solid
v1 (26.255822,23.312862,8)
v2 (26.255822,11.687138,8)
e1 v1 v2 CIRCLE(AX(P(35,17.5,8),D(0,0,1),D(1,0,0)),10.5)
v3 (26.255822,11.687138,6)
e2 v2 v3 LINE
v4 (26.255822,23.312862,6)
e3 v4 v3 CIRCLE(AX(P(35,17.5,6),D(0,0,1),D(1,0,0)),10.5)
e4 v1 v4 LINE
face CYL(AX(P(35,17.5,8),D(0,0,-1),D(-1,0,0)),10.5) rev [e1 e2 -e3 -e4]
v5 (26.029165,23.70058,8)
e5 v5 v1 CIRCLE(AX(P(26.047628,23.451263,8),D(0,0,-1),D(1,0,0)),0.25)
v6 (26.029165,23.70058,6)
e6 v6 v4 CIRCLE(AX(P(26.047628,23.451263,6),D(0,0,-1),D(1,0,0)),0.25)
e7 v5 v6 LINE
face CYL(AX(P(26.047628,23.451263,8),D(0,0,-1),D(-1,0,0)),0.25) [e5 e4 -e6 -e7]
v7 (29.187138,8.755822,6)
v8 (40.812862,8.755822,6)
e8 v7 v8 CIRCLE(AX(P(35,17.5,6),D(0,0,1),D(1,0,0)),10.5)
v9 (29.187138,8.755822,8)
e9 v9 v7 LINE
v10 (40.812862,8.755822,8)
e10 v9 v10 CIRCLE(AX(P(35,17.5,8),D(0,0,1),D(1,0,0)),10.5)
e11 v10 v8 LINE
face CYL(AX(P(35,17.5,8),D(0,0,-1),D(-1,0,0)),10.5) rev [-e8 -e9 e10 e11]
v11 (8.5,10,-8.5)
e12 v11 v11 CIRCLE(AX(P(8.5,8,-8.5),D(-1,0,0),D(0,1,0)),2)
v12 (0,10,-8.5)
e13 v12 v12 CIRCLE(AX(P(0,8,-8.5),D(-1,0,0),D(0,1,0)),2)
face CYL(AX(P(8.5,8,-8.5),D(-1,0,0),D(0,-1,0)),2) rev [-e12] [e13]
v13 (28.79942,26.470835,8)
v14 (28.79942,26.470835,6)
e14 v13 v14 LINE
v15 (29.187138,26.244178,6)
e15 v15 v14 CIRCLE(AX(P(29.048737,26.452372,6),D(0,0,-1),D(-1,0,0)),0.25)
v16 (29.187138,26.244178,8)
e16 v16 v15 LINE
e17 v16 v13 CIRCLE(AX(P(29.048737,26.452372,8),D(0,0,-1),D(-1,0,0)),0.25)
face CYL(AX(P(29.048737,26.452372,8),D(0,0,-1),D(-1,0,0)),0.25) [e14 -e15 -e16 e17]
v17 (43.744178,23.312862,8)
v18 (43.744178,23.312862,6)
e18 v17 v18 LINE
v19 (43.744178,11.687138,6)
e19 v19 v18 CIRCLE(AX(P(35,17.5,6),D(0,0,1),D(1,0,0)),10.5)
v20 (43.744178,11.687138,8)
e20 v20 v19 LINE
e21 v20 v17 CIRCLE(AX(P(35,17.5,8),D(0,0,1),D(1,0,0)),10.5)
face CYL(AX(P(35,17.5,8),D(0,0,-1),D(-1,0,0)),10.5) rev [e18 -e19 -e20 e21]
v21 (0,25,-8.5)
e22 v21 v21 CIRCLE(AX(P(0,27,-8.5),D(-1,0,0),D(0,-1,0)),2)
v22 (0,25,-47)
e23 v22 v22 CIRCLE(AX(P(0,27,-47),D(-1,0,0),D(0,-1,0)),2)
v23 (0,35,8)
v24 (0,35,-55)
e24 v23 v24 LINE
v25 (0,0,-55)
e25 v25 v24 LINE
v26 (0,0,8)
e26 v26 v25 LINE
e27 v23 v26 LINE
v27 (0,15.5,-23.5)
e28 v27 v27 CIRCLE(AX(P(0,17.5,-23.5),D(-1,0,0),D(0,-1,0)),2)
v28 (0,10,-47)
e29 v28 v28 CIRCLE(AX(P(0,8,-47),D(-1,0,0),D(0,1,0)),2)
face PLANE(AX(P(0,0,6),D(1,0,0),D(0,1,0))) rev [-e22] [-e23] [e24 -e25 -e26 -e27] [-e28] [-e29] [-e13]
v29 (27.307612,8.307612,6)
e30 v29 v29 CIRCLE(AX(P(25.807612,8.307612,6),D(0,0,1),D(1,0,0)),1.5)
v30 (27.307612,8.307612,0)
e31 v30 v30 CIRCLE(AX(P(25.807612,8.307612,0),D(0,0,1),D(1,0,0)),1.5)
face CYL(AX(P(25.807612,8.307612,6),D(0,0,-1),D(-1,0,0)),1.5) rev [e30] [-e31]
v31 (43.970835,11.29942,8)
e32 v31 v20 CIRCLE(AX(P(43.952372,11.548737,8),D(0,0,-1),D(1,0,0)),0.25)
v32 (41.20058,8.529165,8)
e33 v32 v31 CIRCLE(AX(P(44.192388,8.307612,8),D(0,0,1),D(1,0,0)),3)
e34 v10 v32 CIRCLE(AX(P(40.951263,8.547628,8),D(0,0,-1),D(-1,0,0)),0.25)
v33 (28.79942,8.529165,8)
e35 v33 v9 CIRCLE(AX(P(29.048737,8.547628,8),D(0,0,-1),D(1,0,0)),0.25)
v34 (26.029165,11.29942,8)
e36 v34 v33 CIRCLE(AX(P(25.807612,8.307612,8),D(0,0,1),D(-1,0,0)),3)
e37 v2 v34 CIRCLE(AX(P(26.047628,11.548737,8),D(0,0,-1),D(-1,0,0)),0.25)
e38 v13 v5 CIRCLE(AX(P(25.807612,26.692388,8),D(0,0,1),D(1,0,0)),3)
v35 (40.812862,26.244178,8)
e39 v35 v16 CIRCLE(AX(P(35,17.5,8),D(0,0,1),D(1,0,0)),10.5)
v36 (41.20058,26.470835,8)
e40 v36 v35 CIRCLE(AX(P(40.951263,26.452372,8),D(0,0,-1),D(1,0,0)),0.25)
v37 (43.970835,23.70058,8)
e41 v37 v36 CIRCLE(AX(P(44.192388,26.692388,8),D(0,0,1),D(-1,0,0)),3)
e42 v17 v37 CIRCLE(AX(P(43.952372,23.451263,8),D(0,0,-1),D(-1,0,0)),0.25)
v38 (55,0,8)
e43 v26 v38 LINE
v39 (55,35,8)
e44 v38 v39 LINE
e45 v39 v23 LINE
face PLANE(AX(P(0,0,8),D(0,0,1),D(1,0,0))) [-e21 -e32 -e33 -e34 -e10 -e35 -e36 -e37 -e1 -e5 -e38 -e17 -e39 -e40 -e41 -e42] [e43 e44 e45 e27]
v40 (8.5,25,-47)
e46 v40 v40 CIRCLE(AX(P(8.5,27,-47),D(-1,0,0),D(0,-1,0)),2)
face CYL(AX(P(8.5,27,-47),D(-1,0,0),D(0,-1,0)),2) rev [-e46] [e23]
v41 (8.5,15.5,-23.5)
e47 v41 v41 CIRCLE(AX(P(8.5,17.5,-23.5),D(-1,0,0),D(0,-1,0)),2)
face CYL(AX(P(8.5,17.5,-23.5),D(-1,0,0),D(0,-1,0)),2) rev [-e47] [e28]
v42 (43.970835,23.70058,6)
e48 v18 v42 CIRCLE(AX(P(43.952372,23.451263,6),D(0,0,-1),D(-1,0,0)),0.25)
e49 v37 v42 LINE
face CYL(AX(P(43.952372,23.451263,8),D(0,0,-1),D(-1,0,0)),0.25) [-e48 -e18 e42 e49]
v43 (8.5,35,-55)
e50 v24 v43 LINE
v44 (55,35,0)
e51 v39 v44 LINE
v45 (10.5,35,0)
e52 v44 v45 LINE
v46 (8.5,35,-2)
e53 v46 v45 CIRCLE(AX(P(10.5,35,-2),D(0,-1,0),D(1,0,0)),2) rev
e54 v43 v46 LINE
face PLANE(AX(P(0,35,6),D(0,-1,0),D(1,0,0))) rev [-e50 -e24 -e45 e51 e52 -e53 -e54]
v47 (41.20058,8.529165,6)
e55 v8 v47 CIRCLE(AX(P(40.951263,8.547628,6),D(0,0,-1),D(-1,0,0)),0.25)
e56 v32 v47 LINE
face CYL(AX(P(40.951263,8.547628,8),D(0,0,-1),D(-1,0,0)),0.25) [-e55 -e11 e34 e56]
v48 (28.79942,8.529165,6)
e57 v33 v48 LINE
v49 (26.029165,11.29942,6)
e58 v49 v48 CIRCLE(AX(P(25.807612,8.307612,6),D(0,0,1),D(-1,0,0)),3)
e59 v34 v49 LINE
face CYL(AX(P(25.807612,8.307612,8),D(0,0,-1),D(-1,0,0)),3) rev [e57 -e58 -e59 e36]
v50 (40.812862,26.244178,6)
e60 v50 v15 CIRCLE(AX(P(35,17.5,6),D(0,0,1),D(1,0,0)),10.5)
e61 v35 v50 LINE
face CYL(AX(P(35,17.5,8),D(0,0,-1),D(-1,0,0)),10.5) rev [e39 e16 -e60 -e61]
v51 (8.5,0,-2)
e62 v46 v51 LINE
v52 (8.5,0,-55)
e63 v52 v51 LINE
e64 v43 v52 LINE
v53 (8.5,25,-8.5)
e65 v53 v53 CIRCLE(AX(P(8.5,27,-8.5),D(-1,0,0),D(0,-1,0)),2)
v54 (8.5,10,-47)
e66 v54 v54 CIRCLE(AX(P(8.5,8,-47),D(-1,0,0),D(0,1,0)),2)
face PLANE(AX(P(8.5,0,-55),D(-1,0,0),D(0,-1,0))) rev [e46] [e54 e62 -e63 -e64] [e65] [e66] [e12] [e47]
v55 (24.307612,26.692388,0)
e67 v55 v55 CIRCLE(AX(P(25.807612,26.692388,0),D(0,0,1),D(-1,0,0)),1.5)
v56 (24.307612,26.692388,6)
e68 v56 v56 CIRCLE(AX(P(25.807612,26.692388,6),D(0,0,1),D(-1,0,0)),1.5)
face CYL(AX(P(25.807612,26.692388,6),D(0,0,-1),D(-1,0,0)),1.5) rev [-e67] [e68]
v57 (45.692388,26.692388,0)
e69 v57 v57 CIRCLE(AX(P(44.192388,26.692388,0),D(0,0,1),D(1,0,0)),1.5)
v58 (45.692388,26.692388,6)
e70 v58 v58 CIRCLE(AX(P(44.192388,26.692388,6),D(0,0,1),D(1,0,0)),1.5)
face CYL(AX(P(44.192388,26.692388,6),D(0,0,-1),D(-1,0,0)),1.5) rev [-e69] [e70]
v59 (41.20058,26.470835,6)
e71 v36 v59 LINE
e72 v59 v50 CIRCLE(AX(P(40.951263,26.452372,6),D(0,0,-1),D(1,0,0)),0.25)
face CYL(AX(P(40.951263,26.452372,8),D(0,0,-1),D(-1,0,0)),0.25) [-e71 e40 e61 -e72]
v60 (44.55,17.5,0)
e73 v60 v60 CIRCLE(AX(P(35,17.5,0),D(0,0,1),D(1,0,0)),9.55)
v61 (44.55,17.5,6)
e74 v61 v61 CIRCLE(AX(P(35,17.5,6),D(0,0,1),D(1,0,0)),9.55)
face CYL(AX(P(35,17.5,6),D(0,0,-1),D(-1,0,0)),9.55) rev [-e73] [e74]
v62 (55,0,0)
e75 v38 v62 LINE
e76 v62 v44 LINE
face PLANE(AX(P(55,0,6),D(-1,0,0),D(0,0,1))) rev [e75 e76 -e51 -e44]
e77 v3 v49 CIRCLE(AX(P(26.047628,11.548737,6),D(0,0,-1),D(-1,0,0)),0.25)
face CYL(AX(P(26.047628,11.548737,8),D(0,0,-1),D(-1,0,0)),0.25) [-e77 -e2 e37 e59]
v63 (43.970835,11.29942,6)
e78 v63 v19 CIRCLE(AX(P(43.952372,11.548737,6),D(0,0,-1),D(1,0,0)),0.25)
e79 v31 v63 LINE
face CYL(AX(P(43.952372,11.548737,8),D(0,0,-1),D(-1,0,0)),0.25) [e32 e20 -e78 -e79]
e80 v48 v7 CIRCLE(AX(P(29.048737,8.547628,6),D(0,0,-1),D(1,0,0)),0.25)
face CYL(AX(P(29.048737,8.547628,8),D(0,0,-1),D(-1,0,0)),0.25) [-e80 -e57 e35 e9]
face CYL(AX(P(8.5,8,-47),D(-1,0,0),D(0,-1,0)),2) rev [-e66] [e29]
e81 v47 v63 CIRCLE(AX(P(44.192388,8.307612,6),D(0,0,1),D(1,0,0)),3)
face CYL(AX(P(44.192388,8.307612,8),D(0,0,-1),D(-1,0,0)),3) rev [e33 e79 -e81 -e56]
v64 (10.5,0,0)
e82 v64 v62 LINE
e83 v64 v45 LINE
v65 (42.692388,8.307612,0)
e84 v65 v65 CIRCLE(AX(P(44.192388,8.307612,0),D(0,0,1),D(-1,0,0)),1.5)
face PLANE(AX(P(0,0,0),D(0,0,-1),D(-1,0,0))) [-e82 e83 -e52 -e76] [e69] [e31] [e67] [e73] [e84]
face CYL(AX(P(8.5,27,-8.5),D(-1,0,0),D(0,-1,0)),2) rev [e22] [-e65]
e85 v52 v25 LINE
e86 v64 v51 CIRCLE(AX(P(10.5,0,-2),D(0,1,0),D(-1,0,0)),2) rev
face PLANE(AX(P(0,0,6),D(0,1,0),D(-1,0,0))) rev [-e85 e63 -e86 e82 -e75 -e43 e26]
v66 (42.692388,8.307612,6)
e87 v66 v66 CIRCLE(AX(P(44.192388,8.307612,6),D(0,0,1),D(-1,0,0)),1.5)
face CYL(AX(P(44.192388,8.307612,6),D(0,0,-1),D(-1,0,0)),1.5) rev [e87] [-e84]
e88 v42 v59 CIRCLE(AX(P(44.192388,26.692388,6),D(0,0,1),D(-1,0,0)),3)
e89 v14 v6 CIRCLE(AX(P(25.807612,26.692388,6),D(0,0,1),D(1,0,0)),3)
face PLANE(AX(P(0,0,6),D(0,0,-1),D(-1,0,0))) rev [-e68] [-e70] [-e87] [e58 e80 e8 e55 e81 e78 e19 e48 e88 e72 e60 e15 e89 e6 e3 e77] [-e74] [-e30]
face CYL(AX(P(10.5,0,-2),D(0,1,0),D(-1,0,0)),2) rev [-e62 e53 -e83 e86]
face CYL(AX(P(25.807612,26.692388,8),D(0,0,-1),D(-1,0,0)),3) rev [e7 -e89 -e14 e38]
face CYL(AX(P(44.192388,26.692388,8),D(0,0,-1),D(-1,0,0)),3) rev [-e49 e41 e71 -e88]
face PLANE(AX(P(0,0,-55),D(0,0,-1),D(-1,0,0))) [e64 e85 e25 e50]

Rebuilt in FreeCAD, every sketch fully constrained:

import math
import FreeCAD as App
import Part
import Sketcher
Q = App.Units.Quantity


def edges_at(feature, points):
    """Names of the edges that pass closest to the given points."""
    edges = feature.Shape.Edges
    near = lambda p: min(range(len(edges)), key=lambda i: edges[i].distToShape(Part.Vertex(*p))[0])
    return sorted({f"Edge{near(p) + 1}" for p in points})

doc = App.newDocument("Part")
body = doc.addObject("PartDesign::Body", "Body")

# Sketch on XY plane
sketch1 = body.newObject("Sketcher::SketchObject", "Sketch")
sketch1.AttachmentSupport = (doc.getObject("XY_Plane"), [""])
sketch1.MapMode = "FlatFace"
sketch1.addGeometry([
    Part.LineSegment(App.Vector(0, 35, 0), App.Vector(0, 0, 0)),  # 0
    Part.LineSegment(App.Vector(0, 0, 0), App.Vector(55, 0, 0)),  # 1
    Part.LineSegment(App.Vector(55, 0, 0), App.Vector(55, 35, 0)),  # 2
    Part.LineSegment(App.Vector(55, 35, 0), App.Vector(0, 35, 0)),  # 3
    Part.Circle(App.Vector(25.8, 8.3, 0), App.Vector(0, 0, 1), 1.5),  # 4
    Part.Circle(App.Vector(44.2, 8.3, 0), App.Vector(0, 0, 1), 1.5),  # 5
    Part.Circle(App.Vector(35, 17.5, 0), App.Vector(0, 0, 1), 9.6),  # 6
    Part.Circle(App.Vector(25.8, 26.7, 0), App.Vector(0, 0, 1), 1.5),  # 7
    Part.Circle(App.Vector(44.2, 26.7, 0), App.Vector(0, 0, 1), 1.5),  # 8
], False)
sketch1.addConstraint([
    Sketcher.Constraint("Coincident", 0, 2, 1, 1),
    Sketcher.Constraint("Coincident", 1, 2, 2, 1),
    Sketcher.Constraint("Coincident", 2, 2, 3, 1),
    Sketcher.Constraint("Coincident", 3, 2, 0, 1),
    Sketcher.Constraint("Vertical", 0),
    Sketcher.Constraint("Horizontal", 1),
    Sketcher.Constraint("Vertical", 2),
    Sketcher.Constraint("Horizontal", 3),
    Sketcher.Constraint("Coincident", 0, 2, -1, 1),
    Sketcher.Constraint("Equal", 4, 5),
    Sketcher.Constraint("Equal", 5, 7),
    Sketcher.Constraint("Equal", 7, 8),
    Sketcher.Constraint("Horizontal", 4, 3, 5, 3),
    Sketcher.Constraint("Horizontal", 7, 3, 8, 3),
    Sketcher.Constraint("Vertical", 4, 3, 7, 3),
    Sketcher.Constraint("Vertical", 5, 3, 8, 3),
    Sketcher.Constraint("Diameter", 4, Q("3 mm")),
    Sketcher.Constraint("Diameter", 6, Q("19.1 mm")),
    Sketcher.Constraint("DistanceX", 1, 1, 1, 2, Q("55 mm")),
    Sketcher.Constraint("DistanceY", 0, 2, 0, 1, Q("35 mm")),
    Sketcher.Constraint("DistanceX", -1, 1, 6, 3, Q("35 mm")),
    Sketcher.Constraint("DistanceY", -1, 1, 6, 3, Q("17.5 mm")),
    Sketcher.Constraint("DistanceX", -1, 1, 4, 3, Q("25.807612 mm")),
    Sketcher.Constraint("DistanceY", -1, 1, 4, 3, Q("8.307612 mm")),
    Sketcher.Constraint("DistanceX", -1, 1, 5, 3, Q("44.192388 mm")),
    Sketcher.Constraint("DistanceY", -1, 1, 7, 3, Q("26.692388 mm")),
])
pad1 = body.newObject("PartDesign::Pad", "Pad")
pad1.Profile = sketch1
pad1.Length = 6

# Sketch on XY plane
sketch2 = body.newObject("Sketcher::SketchObject", "Sketch001")
sketch2.AttachmentSupport = (doc.getObject("XY_Plane"), [""])
sketch2.MapMode = "FlatFace"
sketch2.AttachmentOffset = App.Placement(App.Vector(0, 0, 6), App.Rotation())
sketch2.addGeometry([
    Part.LineSegment(App.Vector(0, 35, 0), App.Vector(0, 0, 0)),  # 0
    Part.LineSegment(App.Vector(0, 0, 0), App.Vector(55, 0, 0)),  # 1
    Part.LineSegment(App.Vector(55, 0, 0), App.Vector(55, 35, 0)),  # 2
    Part.LineSegment(App.Vector(55, 35, 0), App.Vector(0, 35, 0)),  # 3
    Part.ArcOfCircle(Part.Circle(App.Vector(25.807612, 26.692388, 0), App.Vector(0, 0, 1), 3), math.radians(-4.235209), math.radians(274.235209)),  # 4
    Part.ArcOfCircle(Part.Circle(App.Vector(29.048737, 26.452372, 0), App.Vector(0, 0, 1), 0.25), math.radians(175.764791), math.radians(303.614743)),  # 5
    Part.ArcOfCircle(Part.Circle(App.Vector(35, 17.5, 0), App.Vector(0, 0, 1), 10.5), math.radians(56.385257), math.radians(123.614743)),  # 6
    Part.ArcOfCircle(Part.Circle(App.Vector(40.951263, 26.452372, 0), App.Vector(0, 0, 1), 0.25), math.radians(-123.614743), math.radians(4.235209)),  # 7
    Part.ArcOfCircle(Part.Circle(App.Vector(44.192388, 26.692388, 0), App.Vector(0, 0, 1), 3), math.radians(-94.235209), math.radians(184.235209)),  # 8
    Part.ArcOfCircle(Part.Circle(App.Vector(43.952372, 23.451263, 0), App.Vector(0, 0, 1), 0.25), math.radians(85.764791), math.radians(213.614743)),  # 9
    Part.ArcOfCircle(Part.Circle(App.Vector(35, 17.5, 0), App.Vector(0, 0, 1), 10.5), math.radians(-33.614743), math.radians(33.614743)),  # 10
    Part.ArcOfCircle(Part.Circle(App.Vector(43.952372, 11.548737, 0), App.Vector(0, 0, 1), 0.25), math.radians(146.385257), math.radians(274.235209)),  # 11
    Part.ArcOfCircle(Part.Circle(App.Vector(44.192388, 8.307612, 0), App.Vector(0, 0, 1), 3), math.radians(175.764791), math.radians(454.235209)),  # 12
    Part.ArcOfCircle(Part.Circle(App.Vector(40.951263, 8.547628, 0), App.Vector(0, 0, 1), 0.25), math.radians(-4.235209), math.radians(123.614743)),  # 13
    Part.ArcOfCircle(Part.Circle(App.Vector(35, 17.5, 0), App.Vector(0, 0, 1), 10.5), math.radians(-123.614743), math.radians(-56.385257)),  # 14
    Part.ArcOfCircle(Part.Circle(App.Vector(29.048737, 8.547628, 0), App.Vector(0, 0, 1), 0.25), math.radians(56.385257), math.radians(184.235209)),  # 15
    Part.ArcOfCircle(Part.Circle(App.Vector(25.807612, 8.307612, 0), App.Vector(0, 0, 1), 3), math.radians(85.764791), math.radians(364.235209)),  # 16
    Part.ArcOfCircle(Part.Circle(App.Vector(26.047628, 11.548737, 0), App.Vector(0, 0, 1), 0.25), math.radians(-94.235209), math.radians(33.614743)),  # 17
    Part.ArcOfCircle(Part.Circle(App.Vector(35, 17.5, 0), App.Vector(0, 0, 1), 10.5), math.radians(146.385257), math.radians(213.614743)),  # 18
    Part.ArcOfCircle(Part.Circle(App.Vector(26.047628, 23.451263, 0), App.Vector(0, 0, 1), 0.25), math.radians(-33.614743), math.radians(94.235209)),  # 19
], False)
sketch2.addConstraint([
    Sketcher.Constraint("Coincident", 0, 2, 1, 1),
    Sketcher.Constraint("Coincident", 1, 2, 2, 1),
    Sketcher.Constraint("Coincident", 2, 2, 3, 1),
    Sketcher.Constraint("Coincident", 3, 2, 0, 1),
    Sketcher.Constraint("Coincident", 4, 1, 5, 1),
    Sketcher.Constraint("Coincident", 5, 2, 6, 2),
    Sketcher.Constraint("Coincident", 6, 1, 7, 1),
    Sketcher.Constraint("Coincident", 7, 2, 8, 2),
    Sketcher.Constraint("Coincident", 8, 1, 9, 1),
    Sketcher.Constraint("Coincident", 9, 2, 10, 2),
    Sketcher.Constraint("Coincident", 10, 1, 11, 1),
    Sketcher.Constraint("Coincident", 11, 2, 12, 2),
    Sketcher.Constraint("Coincident", 12, 1, 13, 1),
    Sketcher.Constraint("Coincident", 13, 2, 14, 2),
    Sketcher.Constraint("Coincident", 14, 1, 15, 1),
    Sketcher.Constraint("Coincident", 15, 2, 16, 2),
    Sketcher.Constraint("Coincident", 16, 1, 17, 1),
    Sketcher.Constraint("Coincident", 17, 2, 18, 2),
    Sketcher.Constraint("Coincident", 18, 1, 19, 1),
    Sketcher.Constraint("Coincident", 19, 2, 4, 2),
    Sketcher.Constraint("Vertical", 0),
    Sketcher.Constraint("Horizontal", 1),
    Sketcher.Constraint("Vertical", 2),
    Sketcher.Constraint("Horizontal", 3),
    Sketcher.Constraint("Coincident", 0, 2, -1, 1),
    Sketcher.Constraint("Coincident", 10, 3, 6, 3),
    Sketcher.Constraint("Coincident", 14, 3, 6, 3),
    Sketcher.Constraint("Coincident", 18, 3, 6, 3),
    Sketcher.Constraint("Radius", 4, Q("3 mm")),
    Sketcher.Constraint("Radius", 8, Q("3 mm")),
    Sketcher.Constraint("Radius", 12, Q("3 mm")),
    Sketcher.Constraint("Radius", 16, Q("3 mm")),
    Sketcher.Constraint("Radius", 6, Q("10.5 mm")),
    Sketcher.Constraint("Radius", 10, Q("10.5 mm")),
    Sketcher.Constraint("Radius", 14, Q("10.5 mm")),
    Sketcher.Constraint("Radius", 18, Q("10.5 mm")),
    Sketcher.Constraint("DistanceX", 1, 1, 1, 2, Q("55 mm")),
    Sketcher.Constraint("DistanceY", 0, 2, 0, 1, Q("35 mm")),
    Sketcher.Constraint("Radius", 5, Q("0.25 mm")),
    Sketcher.Constraint("Radius", 7, Q("0.25 mm")),
    Sketcher.Constraint("Radius", 9, Q("0.25 mm")),
    Sketcher.Constraint("Radius", 11, Q("0.25 mm")),
    Sketcher.Constraint("Radius", 13, Q("0.25 mm")),
    Sketcher.Constraint("Radius", 15, Q("0.25 mm")),
    Sketcher.Constraint("Radius", 17, Q("0.25 mm")),
    Sketcher.Constraint("Radius", 19, Q("0.25 mm")),
    Sketcher.Constraint("DistanceX", -1, 1, 6, 3, Q("35 mm")),
    Sketcher.Constraint("DistanceY", -1, 1, 6, 3, Q("17.5 mm")),
    Sketcher.Constraint("DistanceX", 5, 3, 5, 2, Q("0.138401 mm")),
    Sketcher.Constraint("DistanceX", 6, 1, 7, 3, Q("0.138401 mm")),
    Sketcher.Constraint("DistanceY", 9, 2, 9, 3, Q("0.138401 mm")),
    Sketcher.Constraint("DistanceY", 11, 3, 10, 1, Q("0.138401 mm")),
    Sketcher.Constraint("DistanceX", 13, 2, 13, 3, Q("0.138401 mm")),
    Sketcher.Constraint("DistanceX", 15, 3, 14, 1, Q("0.138401 mm")),
    Sketcher.Constraint("DistanceY", 17, 3, 17, 2, Q("0.138401 mm")),
    Sketcher.Constraint("DistanceY", 18, 1, 19, 3, Q("0.138401 mm")),
    Sketcher.Constraint("DistanceX", -1, 1, 4, 3, Q("25.807612 mm")),
    Sketcher.Constraint("DistanceY", -1, 1, 4, 3, Q("26.692388 mm")),
    Sketcher.Constraint("DistanceX", -1, 1, 8, 3, Q("44.192388 mm")),
    Sketcher.Constraint("DistanceY", -1, 1, 8, 3, Q("26.692388 mm")),
    Sketcher.Constraint("DistanceX", -1, 1, 12, 3, Q("44.192388 mm")),
    Sketcher.Constraint("DistanceY", -1, 1, 12, 3, Q("8.307612 mm")),
    Sketcher.Constraint("DistanceX", -1, 1, 16, 3, Q("25.807612 mm")),
    Sketcher.Constraint("DistanceY", -1, 1, 16, 3, Q("8.307612 mm")),
    Sketcher.Constraint("DistanceX", -1, 1, 4, 1, Q("28.79942 mm")),
    Sketcher.Constraint("DistanceX", -1, 1, 7, 2, Q("41.20058 mm")),
    Sketcher.Constraint("DistanceY", -1, 1, 8, 1, Q("23.70058 mm")),
    Sketcher.Constraint("DistanceY", -1, 1, 11, 2, Q("11.29942 mm")),
    Sketcher.Constraint("DistanceX", -1, 1, 12, 1, Q("41.20058 mm")),
    Sketcher.Constraint("DistanceX", -1, 1, 15, 2, Q("28.79942 mm")),
    Sketcher.Constraint("DistanceY", -1, 1, 16, 1, Q("11.29942 mm")),
    Sketcher.Constraint("DistanceY", -1, 1, 19, 2, Q("23.70058 mm")),
])
pad2 = body.newObject("PartDesign::Pad", "Pad001")
pad2.Profile = sketch2
pad2.Length = 2

# Sketch on XY plane
sketch3 = body.newObject("Sketcher::SketchObject", "Sketch002")
sketch3.AttachmentSupport = (doc.getObject("XY_Plane"), [""])
sketch3.MapMode = "FlatFace"
sketch3.addGeometry([
    Part.LineSegment(App.Vector(8, 35, 0), App.Vector(8, 0, 0)),
    Part.LineSegment(App.Vector(8, 0, 0), App.Vector(0, 0, 0)),
    Part.LineSegment(App.Vector(0, 0, 0), App.Vector(0, 35, 0)),
    Part.LineSegment(App.Vector(0, 35, 0), App.Vector(8, 35, 0)),
], False)
sketch3.addConstraint([
    Sketcher.Constraint("Coincident", 0, 2, 1, 1),
    Sketcher.Constraint("Coincident", 1, 2, 2, 1),
    Sketcher.Constraint("Coincident", 2, 2, 3, 1),
    Sketcher.Constraint("Coincident", 3, 2, 0, 1),
    Sketcher.Constraint("Vertical", 0),
    Sketcher.Constraint("Horizontal", 1),
    Sketcher.Constraint("Vertical", 2),
    Sketcher.Constraint("Horizontal", 3),
    Sketcher.Constraint("Coincident", 1, 2, -1, 1),
    Sketcher.Constraint("DistanceY", 0, 2, 0, 1, Q("35 mm")),
    Sketcher.Constraint("DistanceX", 1, 2, 1, 1, Q("8.5 mm")),
])
pad3 = body.newObject("PartDesign::Pad", "Pad002")
pad3.Profile = sketch3
pad3.Length = 55
pad3.Reversed = True

# Sketch on YZ plane
sketch4 = body.newObject("Sketcher::SketchObject", "Sketch003")
sketch4.AttachmentSupport = (doc.getObject("YZ_Plane"), [""])
sketch4.MapMode = "FlatFace"
sketch4.addGeometry([
    Part.Circle(App.Vector(27, -47, 0), App.Vector(0, 0, 1), 2),  # 0
    Part.Circle(App.Vector(8, -47, 0), App.Vector(0, 0, 1), 2),  # 1
    Part.Circle(App.Vector(27, -8.5, 0), App.Vector(0, 0, 1), 2),  # 2
    Part.Circle(App.Vector(8, -8.5, 0), App.Vector(0, 0, 1), 2),  # 3
    Part.Circle(App.Vector(17.5, -23.5, 0), App.Vector(0, 0, 1), 2),  # 4
], False)
sketch4.addConstraint([
    Sketcher.Constraint("Equal", 0, 1),
    Sketcher.Constraint("Equal", 1, 2),
    Sketcher.Constraint("Equal", 2, 3),
    Sketcher.Constraint("Equal", 3, 4),
    Sketcher.Constraint("Horizontal", 0, 3, 1, 3),
    Sketcher.Constraint("Horizontal", 2, 3, 3, 3),
    Sketcher.Constraint("Vertical", 0, 3, 2, 3),
    Sketcher.Constraint("Vertical", 1, 3, 3, 3),
    Sketcher.Constraint("Diameter", 0, Q("4 mm")),
    Sketcher.Constraint("DistanceX", -1, 1, 0, 3, Q("27 mm")),
    Sketcher.Constraint("DistanceY", 0, 3, -1, 1, Q("47 mm")),
    Sketcher.Constraint("DistanceX", -1, 1, 1, 3, Q("8 mm")),
    Sketcher.Constraint("DistanceY", 4, 3, 2, 3, Q("15 mm")),
    Sketcher.Constraint("DistanceY", 2, 3, -1, 1, Q("8.5 mm")),
    Sketcher.Constraint("DistanceX", -1, 1, 4, 3, Q("17.5 mm")),
])
pocket1 = body.newObject("PartDesign::Pocket", "Pocket")
pocket1.Profile = sketch4
pocket1.Length = 8.5
pocket1.Reversed = True
doc.recompute()

fillet = body.newObject("PartDesign::Fillet", "Fillet")
fillet.Base = (pocket1, edges_at(pocket1, [(8.5, 17.5, 0)]))
fillet.Radius = 2

doc.recompute()
